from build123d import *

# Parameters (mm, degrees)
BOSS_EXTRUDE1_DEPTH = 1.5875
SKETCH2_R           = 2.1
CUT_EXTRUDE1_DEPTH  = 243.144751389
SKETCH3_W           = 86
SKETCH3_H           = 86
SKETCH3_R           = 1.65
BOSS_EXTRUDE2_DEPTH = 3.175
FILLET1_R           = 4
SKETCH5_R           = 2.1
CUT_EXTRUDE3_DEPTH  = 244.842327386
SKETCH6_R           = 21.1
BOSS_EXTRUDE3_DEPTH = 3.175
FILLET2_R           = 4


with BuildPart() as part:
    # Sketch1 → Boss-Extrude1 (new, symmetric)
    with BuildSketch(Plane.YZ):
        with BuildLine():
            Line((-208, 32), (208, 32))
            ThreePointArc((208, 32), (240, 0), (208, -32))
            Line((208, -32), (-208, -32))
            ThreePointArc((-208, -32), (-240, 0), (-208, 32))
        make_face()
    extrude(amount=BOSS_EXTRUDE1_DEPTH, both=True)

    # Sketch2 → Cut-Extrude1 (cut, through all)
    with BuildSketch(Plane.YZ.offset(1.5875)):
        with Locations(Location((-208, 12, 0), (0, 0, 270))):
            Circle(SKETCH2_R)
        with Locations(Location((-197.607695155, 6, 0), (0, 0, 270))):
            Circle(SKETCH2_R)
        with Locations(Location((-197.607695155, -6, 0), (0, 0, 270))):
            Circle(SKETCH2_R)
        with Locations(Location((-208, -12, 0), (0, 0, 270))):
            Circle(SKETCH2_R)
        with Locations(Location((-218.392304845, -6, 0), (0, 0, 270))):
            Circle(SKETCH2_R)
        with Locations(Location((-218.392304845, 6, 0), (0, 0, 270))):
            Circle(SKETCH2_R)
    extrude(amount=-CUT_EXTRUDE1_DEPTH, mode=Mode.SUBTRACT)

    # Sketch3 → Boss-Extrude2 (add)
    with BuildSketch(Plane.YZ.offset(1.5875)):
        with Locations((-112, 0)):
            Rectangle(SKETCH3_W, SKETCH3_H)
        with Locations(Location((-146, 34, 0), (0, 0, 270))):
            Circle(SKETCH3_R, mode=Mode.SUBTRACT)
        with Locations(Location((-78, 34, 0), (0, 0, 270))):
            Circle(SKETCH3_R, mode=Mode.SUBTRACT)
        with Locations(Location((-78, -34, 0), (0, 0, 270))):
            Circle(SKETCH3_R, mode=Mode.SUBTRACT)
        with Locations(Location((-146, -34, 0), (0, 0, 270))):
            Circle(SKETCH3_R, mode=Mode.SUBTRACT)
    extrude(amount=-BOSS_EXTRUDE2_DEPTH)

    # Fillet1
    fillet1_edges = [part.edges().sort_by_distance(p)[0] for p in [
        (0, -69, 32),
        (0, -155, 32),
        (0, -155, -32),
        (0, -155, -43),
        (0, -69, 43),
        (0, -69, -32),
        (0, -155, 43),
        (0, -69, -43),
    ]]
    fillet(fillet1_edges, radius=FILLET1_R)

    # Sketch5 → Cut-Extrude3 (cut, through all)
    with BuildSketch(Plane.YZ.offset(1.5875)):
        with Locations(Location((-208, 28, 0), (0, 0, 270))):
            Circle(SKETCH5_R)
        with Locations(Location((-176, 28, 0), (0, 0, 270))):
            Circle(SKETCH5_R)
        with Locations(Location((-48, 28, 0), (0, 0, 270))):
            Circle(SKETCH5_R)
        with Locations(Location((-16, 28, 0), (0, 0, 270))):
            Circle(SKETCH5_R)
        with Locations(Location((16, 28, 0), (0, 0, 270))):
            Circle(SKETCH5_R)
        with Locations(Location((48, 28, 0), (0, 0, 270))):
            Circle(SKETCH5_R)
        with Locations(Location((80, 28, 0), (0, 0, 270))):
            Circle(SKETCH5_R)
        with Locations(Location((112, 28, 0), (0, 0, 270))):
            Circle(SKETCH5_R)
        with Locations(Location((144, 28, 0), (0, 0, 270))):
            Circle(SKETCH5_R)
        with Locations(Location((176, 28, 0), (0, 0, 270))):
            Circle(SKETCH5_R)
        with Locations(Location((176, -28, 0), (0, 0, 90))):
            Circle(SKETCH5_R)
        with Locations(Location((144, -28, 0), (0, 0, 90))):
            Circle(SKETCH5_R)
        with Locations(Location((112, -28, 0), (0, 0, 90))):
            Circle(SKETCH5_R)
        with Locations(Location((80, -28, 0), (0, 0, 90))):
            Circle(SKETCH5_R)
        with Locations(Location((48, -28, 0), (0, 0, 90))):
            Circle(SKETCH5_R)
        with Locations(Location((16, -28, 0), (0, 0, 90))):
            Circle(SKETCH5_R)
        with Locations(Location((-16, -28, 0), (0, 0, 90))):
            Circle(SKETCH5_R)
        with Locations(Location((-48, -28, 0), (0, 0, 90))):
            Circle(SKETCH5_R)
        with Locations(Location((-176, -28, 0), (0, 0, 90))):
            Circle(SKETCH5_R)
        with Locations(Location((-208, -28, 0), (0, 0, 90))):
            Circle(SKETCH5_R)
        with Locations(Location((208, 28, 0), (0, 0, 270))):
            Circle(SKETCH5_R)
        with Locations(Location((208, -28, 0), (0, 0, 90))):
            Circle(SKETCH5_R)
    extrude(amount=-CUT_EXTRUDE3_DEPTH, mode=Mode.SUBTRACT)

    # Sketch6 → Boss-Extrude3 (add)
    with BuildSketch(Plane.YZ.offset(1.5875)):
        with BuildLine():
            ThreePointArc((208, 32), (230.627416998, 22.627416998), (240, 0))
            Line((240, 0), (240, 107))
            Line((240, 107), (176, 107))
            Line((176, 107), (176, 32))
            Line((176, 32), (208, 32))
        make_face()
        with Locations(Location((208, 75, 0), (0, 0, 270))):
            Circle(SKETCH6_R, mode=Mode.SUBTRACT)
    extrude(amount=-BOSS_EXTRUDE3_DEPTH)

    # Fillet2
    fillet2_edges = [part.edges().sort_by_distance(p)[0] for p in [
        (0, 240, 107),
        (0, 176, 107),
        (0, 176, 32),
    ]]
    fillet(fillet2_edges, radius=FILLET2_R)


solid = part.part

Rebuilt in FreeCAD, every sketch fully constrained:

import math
import FreeCAD as App
import Part
import Sketcher

V = App.Vector
Q = App.Units.Quantity


def edges_at(feature, points):
    """Names of the edges that pass closest to the given points."""
    edges = feature.Shape.Edges
    near = lambda p: min(range(len(edges)), key=lambda i: edges[i].distToShape(Part.Vertex(*p))[0])
    return sorted({f"Edge{near(p) + 1}" for p in points})

doc = App.newDocument("Part")
body = doc.addObject("PartDesign::Body", "Body")

# Sketch on YZ plane
sketch1 = doc.addObject("Sketcher::SketchObject", "Sketch")
body.addObject(sketch1)
sketch1.AttachmentSupport = (doc.YZ_Plane, [""])
sketch1.MapMode = "FlatFace"
sketch1.addGeometry([
    Part.LineSegment(V(208, 32, 0), V(-208, 32, 0)),
    Part.ArcOfCircle(Part.Circle(V(-208, 0, 0), V(0, 0, 1), 32), math.radians(90), math.radians(270)),
    Part.LineSegment(V(-208, -32, 0), V(208, -32, 0)),
    Part.ArcOfCircle(Part.Circle(V(208, 0, 0), V(0, 0, 1), 32), math.radians(-90), math.radians(90)),
], False)
sketch1.addConstraint([
    Sketcher.Constraint("Tangent", 0, 2, 1, 1),
    Sketcher.Constraint("Tangent", 1, 2, 2, 1),
    Sketcher.Constraint("Tangent", 2, 2, 3, 1),
    Sketcher.Constraint("Tangent", 3, 2, 0, 1),
    Sketcher.Constraint("Horizontal", 0),
    Sketcher.Constraint("Horizontal", 2),
    Sketcher.Constraint("Symmetric", 1, 3, 3, 3, -1, 1),
    Sketcher.Constraint("Radius", 1, Q("32 mm")),
    Sketcher.Constraint("DistanceX", 0, 2, 0, 1, Q("416 mm")),
])
pad1 = doc.addObject("PartDesign::Pad", "Pad")
body.addObject(pad1)
pad1.Profile = sketch1
pad1.Length = 3.175
pad1.Midplane = True

# Sketch on YZ plane
sketch2 = doc.addObject("Sketcher::SketchObject", "Sketch001")
body.addObject(sketch2)
sketch2.AttachmentSupport = (doc.YZ_Plane, [""])
sketch2.MapMode = "FlatFace"
sketch2.AttachmentOffset = App.Placement(V(0, 0, 1.5875), App.Rotation())
sketch2.addGeometry([
    Part.Circle(V(-208, 12, 0), V(0, 0, 1), 2.1),  # 0
    Part.Circle(V(-197.607695, 6, 0), V(0, 0, 1), 2.1),  # 1
    Part.Circle(V(-197.607695, -6, 0), V(0, 0, 1), 2.1),  # 2
    Part.Circle(V(-208, -12, 0), V(0, 0, 1), 2.1),  # 3
    Part.Circle(V(-218.392305, -6, 0), V(0, 0, 1), 2.1),  # 4
    Part.Circle(V(-218.392305, 6, 0), V(0, 0, 1), 2.1),  # 5
], False)
sketch2.addConstraint([
    Sketcher.Constraint("Equal", 0, 1),
    Sketcher.Constraint("Equal", 1, 2),
    Sketcher.Constraint("Equal", 2, 3),
    Sketcher.Constraint("Equal", 3, 4),
    Sketcher.Constraint("Equal", 4, 5),
    Sketcher.Constraint("Symmetric", 1, 3, 2, 3, -1),
    Sketcher.Constraint("Symmetric", 0, 3, 3, 3, -1),
    Sketcher.Constraint("Symmetric", 4, 3, 5, 3, -1),
    Sketcher.Constraint("Horizontal", 2, 3, 4, 3),
    Sketcher.Constraint("Diameter", 0, Q("4.2 mm")),
    Sketcher.Constraint("DistanceX", 0, 3, -1, 1, Q("208 mm")),
    Sketcher.Constraint("DistanceY", -1, 1, 0, 3, Q("12 mm")),
    Sketcher.Constraint("DistanceY", -1, 1, 1, 3, Q("6 mm")),
    Sketcher.Constraint("DistanceX", 4, 3, 2, 3, Q("20.78461 mm")),
    Sketcher.Constraint("DistanceX", 1, 3, -1, 1, Q("197.607695 mm")),
])
pocket1 = doc.addObject("PartDesign::Pocket", "Pocket")
body.addObject(pocket1)
pocket1.Profile = sketch2
pocket1.Type = "ThroughAll"

# Sketch on YZ plane
sketch3 = doc.addObject("Sketcher::SketchObject", "Sketch002")
body.addObject(sketch3)
sketch3.AttachmentSupport = (doc.YZ_Plane, [""])
sketch3.MapMode = "FlatFace"
sketch3.AttachmentOffset = App.Placement(V(0, 0, 1.5875), App.Rotation())
sketch3.addGeometry([
    Part.LineSegment(V(-155, 43, 0), V(-155, -43, 0)),  # 0
    Part.LineSegment(V(-155, -43, 0), V(-69, -43, 0)),  # 1
    Part.LineSegment(V(-69, -43, 0), V(-69, 43, 0)),  # 2
    Part.LineSegment(V(-69, 43, 0), V(-155, 43, 0)),  # 3
    Part.Circle(V(-146, -34, 0), V(0, 0, 1), 1.65),  # 4
    Part.Circle(V(-78, -34, 0), V(0, 0, 1), 1.65),  # 5
    Part.Circle(V(-146, 34, 0), V(0, 0, 1), 1.65),  # 6
    Part.Circle(V(-78, 34, 0), V(0, 0, 1), 1.65),  # 7
], False)
sketch3.addConstraint([
    Sketcher.Constraint("Coincident", 0, 2, 1, 1),
    Sketcher.Constraint("Coincident", 1, 2, 2, 1),
    Sketcher.Constraint("Coincident", 2, 2, 3, 1),
    Sketcher.Constraint("Coincident", 3, 2, 0, 1),
    Sketcher.Constraint("Vertical", 0),
    Sketcher.Constraint("Horizontal", 1),
    Sketcher.Constraint("Vertical", 2),
    Sketcher.Constraint("Horizontal", 3),
    Sketcher.Constraint("Equal", 4, 5),
    Sketcher.Constraint("Equal", 5, 6),
    Sketcher.Constraint("Equal", 6, 7),
    Sketcher.Constraint("Symmetric", 4, 3, 6, 3, -1),
    Sketcher.Constraint("Symmetric", 5, 3, 7, 3, -1),
    Sketcher.Constraint("Horizontal", 4, 3, 5, 3),
    Sketcher.Constraint("Equal", 3, 0),
    Sketcher.Constraint("Diameter", 4, Q("3.3 mm")),
    Sketcher.Constraint("DistanceX", 1, 1, 1, 2, Q("86 mm")),
    Sketcher.Constraint("DistanceX", 4, 3, -1, 1, Q("146 mm")),
    Sketcher.Constraint("DistanceY", 4, 3, -1, 1, Q("34 mm")),
    Sketcher.Constraint("DistanceX", 5, 3, -1, 1, Q("78 mm")),
    Sketcher.Constraint("DistanceX", 0, 2, -1, 1, Q("155 mm")),
    Sketcher.Constraint("DistanceY", 0, 2, -1, 1, Q("43 mm")),
])
pad2 = doc.addObject("PartDesign::Pad", "Pad001")
body.addObject(pad2)
pad2.Profile = sketch3
pad2.Length = 3.175
pad2.Reversed = True
doc.recompute()

fillet = doc.addObject("PartDesign::Fillet", "Fillet")
body.addObject(fillet)
fillet.Base = (pad2, edges_at(pad2, [
    (0, -69, 32),
    (0, -155, 32),
    (0, -155, -32),
    (0, -155, -43),
    (0, -69, 43),
    (0, -69, -32),
    (0, -155, 43),
    (0, -69, -43),
]))
fillet.Radius = 4

# Sketch on YZ plane
sketch4 = doc.addObject("Sketcher::SketchObject", "Sketch003")
body.addObject(sketch4)
sketch4.AttachmentSupport = (doc.YZ_Plane, [""])
sketch4.MapMode = "FlatFace"
sketch4.AttachmentOffset = App.Placement(V(0, 0, 1.5875), App.Rotation())
sketch4.addGeometry([
    Part.Circle(V(-208, 28, 0), V(0, 0, 1), 2.1),  # 0
    Part.Circle(V(-176, 28, 0), V(0, 0, 1), 2.1),  # 1
    Part.Circle(V(-48, 28, 0), V(0, 0, 1), 2.1),  # 2
    Part.Circle(V(-16, 28, 0), V(0, 0, 1), 2.1),  # 3
    Part.Circle(V(16, 28, 0), V(0, 0, 1), 2.1),  # 4
    Part.Circle(V(48, 28, 0), V(0, 0, 1), 2.1),  # 5
    Part.Circle(V(80, 28, 0), V(0, 0, 1), 2.1),  # 6
    Part.Circle(V(112, 28, 0), V(0, 0, 1), 2.1),  # 7
    Part.Circle(V(144, 28, 0), V(0, 0, 1), 2.1),  # 8
    Part.Circle(V(176, 28, 0), V(0, 0, 1), 2.1),  # 9
    Part.Circle(V(176, -28, 0), V(0, 0, 1), 2.1),  # 10
    Part.Circle(V(144, -28, 0), V(0, 0, 1), 2.1),  # 11
    Part.Circle(V(112, -28, 0), V(0, 0, 1), 2.1),  # 12
    Part.Circle(V(80, -28, 0), V(0, 0, 1), 2.1),  # 13
    Part.Circle(V(48, -28, 0), V(0, 0, 1), 2.1),  # 14
    Part.Circle(V(16, -28, 0), V(0, 0, 1), 2.1),  # 15
    Part.Circle(V(-16, -28, 0), V(0, 0, 1), 2.1),  # 16
    Part.Circle(V(-48, -28, 0), V(0, 0, 1), 2.1),  # 17
    Part.Circle(V(-176, -28, 0), V(0, 0, 1), 2.1),  # 18
    Part.Circle(V(-208, -28, 0), V(0, 0, 1), 2.1),  # 19
    Part.Circle(V(208, 28, 0), V(0, 0, 1), 2.1),  # 20
    Part.Circle(V(208, -28, 0), V(0, 0, 1), 2.1),  # 21
], False)
sketch4.addConstraint([
    Sketcher.Constraint("Equal", 0, 1),
    Sketcher.Constraint("Equal", 1, 2),
    Sketcher.Constraint("Equal", 2, 3),
    Sketcher.Constraint("Equal", 3, 4),
    Sketcher.Constraint("Equal", 4, 5),
    Sketcher.Constraint("Equal", 5, 6),
    Sketcher.Constraint("Equal", 6, 7),
    Sketcher.Constraint("Equal", 7, 8),
    Sketcher.Constraint("Equal", 8, 9),
    Sketcher.Constraint("Equal", 9, 10),
    Sketcher.Constraint("Equal", 10, 11),
    Sketcher.Constraint("Equal", 11, 12),
    Sketcher.Constraint("Equal", 12, 13),
    Sketcher.Constraint("Equal", 13, 14),
    Sketcher.Constraint("Equal", 14, 15),
    Sketcher.Constraint("Equal", 15, 16),
    Sketcher.Constraint("Equal", 16, 17),
    Sketcher.Constraint("Equal", 17, 18),
    Sketcher.Constraint("Equal", 18, 19),
    Sketcher.Constraint("Equal", 19, 20),
    Sketcher.Constraint("Equal", 20, 21),
    Sketcher.Constraint("Symmetric", 1, 3, 10, 3, -1, 1),
    Sketcher.Constraint("Symmetric", 2, 3, 14, 3, -1, 1),
    Sketcher.Constraint("Symmetric", 3, 3, 15, 3, -1, 1),
    Sketcher.Constraint("Symmetric", 4, 3, 16, 3, -1, 1),
    Sketcher.Constraint("Symmetric", 5, 3, 17, 3, -1, 1),
    Sketcher.Constraint("Symmetric", 9, 3, 18, 3, -1, 1),
    Sketcher.Constraint("Symmetric", 19, 3, 20, 3, -1, 1),
    Sketcher.Constraint("Symmetric", 0, 3, 21, 3, -1, 1),
    Sketcher.Constraint("Symmetric", 3, 3, 4, 3, -2),
    Sketcher.Constraint("Symmetric", 2, 3, 5, 3, -2),
    Sketcher.Constraint("Symmetric", 1, 3, 9, 3, -2),
    Sketcher.Constraint("Symmetric", 0, 3, 20, 3, -2),
    Sketcher.Constraint("Symmetric", 8, 3, 11, 3, -1),
    Sketcher.Constraint("Symmetric", 7, 3, 12, 3, -1),
    Sketcher.Constraint("Symmetric", 6, 3, 13, 3, -1),
    Sketcher.Constraint("Horizontal", 0, 3, 1, 3),
    Sketcher.Constraint("Horizontal", 1, 3, 2, 3),
    Sketcher.Constraint("Horizontal", 2, 3, 3, 3),
    Sketcher.Constraint("Horizontal", 5, 3, 6, 3),
    Sketcher.Constraint("Horizontal", 6, 3, 7, 3),
    Sketcher.Constraint("Horizontal", 7, 3, 8, 3),
    Sketcher.Constraint("Diameter", 0, Q("4.2 mm")),
    Sketcher.Constraint("DistanceX", 0, 3, -1, 1, Q("208 mm")),
    Sketcher.Constraint("DistanceY", -1, 1, 0, 3, Q("28 mm")),
    Sketcher.Constraint("DistanceX", 1, 3, -1, 1, Q("176 mm")),
    Sketcher.Constraint("DistanceX", 2, 3, -1, 1, Q("48 mm")),
    Sketcher.Constraint("DistanceX", 3, 3, -1, 1, Q("16 mm")),
    Sketcher.Constraint("DistanceX", -1, 1, 6, 3, Q("80 mm")),
    Sketcher.Constraint("DistanceX", -1, 1, 7, 3, Q("112 mm")),
    Sketcher.Constraint("DistanceX", -1, 1, 8, 3, Q("144 mm")),
])
pocket2 = doc.addObject("PartDesign::Pocket", "Pocket001")
body.addObject(pocket2)
pocket2.Profile = sketch4
pocket2.Type = "ThroughAll"

# Sketch on YZ plane
sketch5 = doc.addObject("Sketcher::SketchObject", "Sketch004")
body.addObject(sketch5)
sketch5.AttachmentSupport = (doc.YZ_Plane, [""])
sketch5.MapMode = "FlatFace"
sketch5.AttachmentOffset = App.Placement(V(0, 0, 1.5875), App.Rotation())
sketch5.addGeometry([
    Part.ArcOfCircle(Part.Circle(V(208, 0, 0), V(0, 0, 1), 32), math.radians(0), math.radians(90)),  # 0
    Part.LineSegment(V(240, 0, 0), V(240, 107, 0)),  # 1
    Part.LineSegment(V(240, 107, 0), V(176, 107, 0)),  # 2
    Part.LineSegment(V(176, 107, 0), V(176, 32, 0)),  # 3
    Part.LineSegment(V(176, 32, 0), V(208, 32, 0)),  # 4
    Part.Circle(V(208, 75, 0), V(0, 0, 1), 21.1),  # 5
], False)
sketch5.addConstraint([
    Sketcher.Constraint("Tangent", 0, 1, 1, 1),
    Sketcher.Constraint("Coincident", 1, 2, 2, 1),
    Sketcher.Constraint("Coincident", 2, 2, 3, 1),
    Sketcher.Constraint("Coincident", 3, 2, 4, 1),
    Sketcher.Constraint("Tangent", 4, 2, 0, 2),
    Sketcher.Constraint("Vertical", 1),
    Sketcher.Constraint("Horizontal", 2),
    Sketcher.Constraint("Vertical", 3),
    Sketcher.Constraint("Horizontal", 4),
    Sketcher.Constraint("PointOnObject", 0, 3, -1),
    Sketcher.Constraint("Vertical", 0, 3, 5, 3),
    Sketcher.Constraint("Radius", 0, Q("32 mm")),
    Sketcher.Constraint("Diameter", 5, Q("42.2 mm")),
    Sketcher.Constraint("DistanceX", 2, 2, 2, 1, Q("64 mm")),
    Sketcher.Constraint("DistanceY", 1, 1, 1, 2, Q("107 mm")),
    Sketcher.Constraint("DistanceX", -1, 1, 0, 3, Q("208 mm")),
    Sketcher.Constraint("DistanceY", -1, 1, 5, 3, Q("75 mm")),
])
pad3 = doc.addObject("PartDesign::Pad", "Pad002")
body.addObject(pad3)
pad3.Profile = sketch5
pad3.Length = 3.175
pad3.Reversed = True
doc.recompute()

fillet2 = doc.addObject("PartDesign::Fillet", "Fillet001")
body.addObject(fillet2)
fillet2.Base = (pad3, edges_at(pad3, [(0, 240, 107), (0, 176, 107), (0, 176, 32)]))
fillet2.Radius = 4

doc.recompute()
